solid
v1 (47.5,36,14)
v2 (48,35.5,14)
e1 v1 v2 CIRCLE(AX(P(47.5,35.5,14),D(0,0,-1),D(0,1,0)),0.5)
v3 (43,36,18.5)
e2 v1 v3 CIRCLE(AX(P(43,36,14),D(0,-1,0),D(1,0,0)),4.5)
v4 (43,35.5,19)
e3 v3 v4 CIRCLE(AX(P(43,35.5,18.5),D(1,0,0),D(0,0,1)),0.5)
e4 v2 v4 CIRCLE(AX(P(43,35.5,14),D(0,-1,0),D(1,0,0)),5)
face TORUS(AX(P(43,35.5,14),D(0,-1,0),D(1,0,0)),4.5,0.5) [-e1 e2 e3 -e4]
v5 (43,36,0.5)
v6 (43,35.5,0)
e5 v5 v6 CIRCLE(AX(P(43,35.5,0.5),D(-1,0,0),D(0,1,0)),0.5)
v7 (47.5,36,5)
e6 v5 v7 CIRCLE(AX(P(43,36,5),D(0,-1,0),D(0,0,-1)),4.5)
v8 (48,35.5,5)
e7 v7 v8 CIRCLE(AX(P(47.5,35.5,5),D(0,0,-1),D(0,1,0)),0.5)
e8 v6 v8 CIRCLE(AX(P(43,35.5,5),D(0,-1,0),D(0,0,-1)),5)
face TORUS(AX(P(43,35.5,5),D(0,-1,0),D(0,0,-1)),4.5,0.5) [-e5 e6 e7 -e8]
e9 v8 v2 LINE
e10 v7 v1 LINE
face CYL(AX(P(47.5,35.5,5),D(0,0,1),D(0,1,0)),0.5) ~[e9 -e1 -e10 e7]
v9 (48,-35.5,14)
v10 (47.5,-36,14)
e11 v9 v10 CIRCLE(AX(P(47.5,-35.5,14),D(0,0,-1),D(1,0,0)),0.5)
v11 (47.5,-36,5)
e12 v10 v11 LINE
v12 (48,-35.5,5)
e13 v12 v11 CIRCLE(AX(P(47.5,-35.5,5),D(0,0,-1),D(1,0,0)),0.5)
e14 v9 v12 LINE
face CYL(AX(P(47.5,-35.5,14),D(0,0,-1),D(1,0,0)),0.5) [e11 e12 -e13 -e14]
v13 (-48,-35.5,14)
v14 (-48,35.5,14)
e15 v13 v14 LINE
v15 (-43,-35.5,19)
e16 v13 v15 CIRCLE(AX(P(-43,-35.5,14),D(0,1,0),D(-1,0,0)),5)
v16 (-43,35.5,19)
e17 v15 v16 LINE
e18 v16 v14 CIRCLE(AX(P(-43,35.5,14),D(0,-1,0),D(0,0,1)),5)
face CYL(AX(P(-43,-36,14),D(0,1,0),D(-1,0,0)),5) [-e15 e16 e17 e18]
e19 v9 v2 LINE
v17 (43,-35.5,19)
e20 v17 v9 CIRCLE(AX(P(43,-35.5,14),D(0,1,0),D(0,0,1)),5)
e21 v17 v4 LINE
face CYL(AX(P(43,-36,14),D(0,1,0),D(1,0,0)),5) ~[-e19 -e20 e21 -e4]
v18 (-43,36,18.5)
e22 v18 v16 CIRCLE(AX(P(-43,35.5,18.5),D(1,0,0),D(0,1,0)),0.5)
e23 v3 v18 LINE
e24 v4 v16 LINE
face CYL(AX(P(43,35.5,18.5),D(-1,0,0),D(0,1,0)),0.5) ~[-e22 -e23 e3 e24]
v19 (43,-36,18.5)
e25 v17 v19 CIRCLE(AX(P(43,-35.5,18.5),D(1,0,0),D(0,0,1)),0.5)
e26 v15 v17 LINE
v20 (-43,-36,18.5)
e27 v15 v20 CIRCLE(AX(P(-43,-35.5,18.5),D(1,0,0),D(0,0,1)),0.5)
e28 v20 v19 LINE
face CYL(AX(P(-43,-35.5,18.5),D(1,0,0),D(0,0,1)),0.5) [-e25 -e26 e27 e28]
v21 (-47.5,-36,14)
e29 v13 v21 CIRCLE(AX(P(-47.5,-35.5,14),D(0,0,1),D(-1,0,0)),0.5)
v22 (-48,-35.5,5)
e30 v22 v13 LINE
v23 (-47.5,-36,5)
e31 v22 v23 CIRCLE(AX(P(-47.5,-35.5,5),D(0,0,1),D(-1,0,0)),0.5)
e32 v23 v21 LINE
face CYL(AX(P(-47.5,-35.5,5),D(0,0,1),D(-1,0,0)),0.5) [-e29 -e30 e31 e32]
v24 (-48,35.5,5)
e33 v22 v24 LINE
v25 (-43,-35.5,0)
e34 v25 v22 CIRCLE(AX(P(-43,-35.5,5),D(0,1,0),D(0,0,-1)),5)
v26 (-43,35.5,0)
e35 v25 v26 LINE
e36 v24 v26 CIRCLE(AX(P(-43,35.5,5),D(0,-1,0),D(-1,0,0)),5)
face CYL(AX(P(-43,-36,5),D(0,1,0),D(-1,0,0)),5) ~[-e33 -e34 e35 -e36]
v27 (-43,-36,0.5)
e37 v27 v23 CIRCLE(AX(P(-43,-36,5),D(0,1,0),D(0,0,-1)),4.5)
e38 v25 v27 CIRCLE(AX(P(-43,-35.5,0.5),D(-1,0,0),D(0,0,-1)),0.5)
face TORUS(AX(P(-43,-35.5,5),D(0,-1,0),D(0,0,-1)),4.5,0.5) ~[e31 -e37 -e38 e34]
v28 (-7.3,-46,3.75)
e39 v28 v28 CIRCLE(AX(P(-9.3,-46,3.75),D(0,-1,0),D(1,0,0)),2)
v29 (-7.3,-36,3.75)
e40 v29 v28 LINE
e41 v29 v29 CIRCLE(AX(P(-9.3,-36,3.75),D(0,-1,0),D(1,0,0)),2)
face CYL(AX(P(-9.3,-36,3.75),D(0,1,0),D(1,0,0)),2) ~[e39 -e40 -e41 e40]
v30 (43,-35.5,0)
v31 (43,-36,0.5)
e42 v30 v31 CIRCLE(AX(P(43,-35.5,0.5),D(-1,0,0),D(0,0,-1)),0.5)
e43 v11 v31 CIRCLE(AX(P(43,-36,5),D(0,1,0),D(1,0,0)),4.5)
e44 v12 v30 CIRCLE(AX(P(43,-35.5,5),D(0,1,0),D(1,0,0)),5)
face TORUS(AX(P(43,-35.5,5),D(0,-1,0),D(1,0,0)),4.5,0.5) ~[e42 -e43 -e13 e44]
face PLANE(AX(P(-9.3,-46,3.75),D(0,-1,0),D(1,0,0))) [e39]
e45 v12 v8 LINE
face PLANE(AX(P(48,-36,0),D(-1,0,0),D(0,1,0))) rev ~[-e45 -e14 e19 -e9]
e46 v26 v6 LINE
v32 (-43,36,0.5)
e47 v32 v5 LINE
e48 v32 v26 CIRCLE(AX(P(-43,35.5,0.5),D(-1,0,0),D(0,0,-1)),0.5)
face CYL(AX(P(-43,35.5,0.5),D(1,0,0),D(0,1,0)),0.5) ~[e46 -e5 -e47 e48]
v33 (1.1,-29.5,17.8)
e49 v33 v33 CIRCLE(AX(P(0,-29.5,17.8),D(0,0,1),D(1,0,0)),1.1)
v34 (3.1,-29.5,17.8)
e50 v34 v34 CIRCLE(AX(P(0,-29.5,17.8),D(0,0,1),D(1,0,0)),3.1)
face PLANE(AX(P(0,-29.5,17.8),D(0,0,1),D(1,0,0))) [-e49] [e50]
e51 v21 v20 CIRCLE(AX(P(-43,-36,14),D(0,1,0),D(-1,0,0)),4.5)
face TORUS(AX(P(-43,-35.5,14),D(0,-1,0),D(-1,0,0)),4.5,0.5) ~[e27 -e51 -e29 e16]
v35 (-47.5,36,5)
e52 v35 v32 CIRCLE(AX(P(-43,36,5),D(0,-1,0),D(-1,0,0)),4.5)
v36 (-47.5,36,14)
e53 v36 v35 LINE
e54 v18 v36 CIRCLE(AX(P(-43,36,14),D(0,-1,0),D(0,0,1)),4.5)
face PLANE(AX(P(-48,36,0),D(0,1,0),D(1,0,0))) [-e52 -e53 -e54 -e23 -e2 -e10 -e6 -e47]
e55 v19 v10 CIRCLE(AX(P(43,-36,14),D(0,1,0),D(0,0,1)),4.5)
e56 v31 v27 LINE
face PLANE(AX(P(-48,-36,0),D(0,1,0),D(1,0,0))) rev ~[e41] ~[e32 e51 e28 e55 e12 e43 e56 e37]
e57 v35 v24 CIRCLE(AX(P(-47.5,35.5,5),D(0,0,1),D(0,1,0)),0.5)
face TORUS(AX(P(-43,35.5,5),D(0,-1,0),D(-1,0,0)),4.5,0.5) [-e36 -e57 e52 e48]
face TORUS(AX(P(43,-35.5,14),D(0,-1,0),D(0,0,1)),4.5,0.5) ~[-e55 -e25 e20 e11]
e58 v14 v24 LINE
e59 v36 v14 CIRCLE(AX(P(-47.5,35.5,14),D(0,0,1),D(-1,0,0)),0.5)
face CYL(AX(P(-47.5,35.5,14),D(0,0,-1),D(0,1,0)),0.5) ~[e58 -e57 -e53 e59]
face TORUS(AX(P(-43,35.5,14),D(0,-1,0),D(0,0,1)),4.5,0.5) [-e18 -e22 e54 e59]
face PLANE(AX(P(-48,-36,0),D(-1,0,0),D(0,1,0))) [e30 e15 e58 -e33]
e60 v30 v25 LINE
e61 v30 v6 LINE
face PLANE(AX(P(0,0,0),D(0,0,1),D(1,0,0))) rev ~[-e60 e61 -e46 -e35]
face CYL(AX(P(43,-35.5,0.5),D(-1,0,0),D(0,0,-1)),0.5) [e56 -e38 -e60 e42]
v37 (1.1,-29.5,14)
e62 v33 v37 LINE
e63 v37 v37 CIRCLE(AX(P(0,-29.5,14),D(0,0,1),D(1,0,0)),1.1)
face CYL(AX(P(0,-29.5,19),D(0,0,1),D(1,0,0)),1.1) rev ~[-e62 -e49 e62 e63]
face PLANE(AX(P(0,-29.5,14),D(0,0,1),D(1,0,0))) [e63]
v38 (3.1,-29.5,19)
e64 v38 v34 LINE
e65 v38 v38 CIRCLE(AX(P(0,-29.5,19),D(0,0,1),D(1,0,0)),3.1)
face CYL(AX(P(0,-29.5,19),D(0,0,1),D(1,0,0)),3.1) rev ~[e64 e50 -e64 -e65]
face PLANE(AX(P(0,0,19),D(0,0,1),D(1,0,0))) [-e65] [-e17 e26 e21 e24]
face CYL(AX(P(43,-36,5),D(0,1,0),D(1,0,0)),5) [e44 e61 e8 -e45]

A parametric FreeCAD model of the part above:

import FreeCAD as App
import Part
import Sketcher
from FreeCAD import Vector


def edges_at(feature, points):
    """Names of the edges that pass closest to the given points."""
    edges = feature.Shape.Edges
    near = lambda p: min(range(len(edges)), key=lambda i: edges[i].distToShape(Part.Vertex(*p))[0])
    return sorted({f"Edge{near(p) + 1}" for p in points})

doc = App.newDocument("Part")
params = doc.addObject("Spreadsheet::Sheet", "Params")
for row, (alias, value) in enumerate([
    ("sketch1_width", "96 mm"),
    ("sketch1_height", "72 mm"),
    ("pad1_length", "19 mm"),
    ("fillet_radius", "5 mm"),
    ("fillet2_radius", "0.5 mm"),
    ("sketch2_diameter", "4 mm"),
    ("pad2_length", "10 mm"),
    ("sketch3_diameter", "2.2 mm"),
    ("pocket1_length", "5 mm"),
    ("sketch4_diameter", "6.2 mm"),
    ("sketch4_diameter2", "2.2 mm"),
    ("pocket2_length", "1.2 mm"),
], start=1):
    params.set(f"A{row}", alias)
    params.set(f"B{row}", "=" + value)
    params.setAlias(f"B{row}", alias)

body = doc.addObject("PartDesign::Body", "Body")

sketch1 = body.newObject("Sketcher::SketchObject", "Sketch")
sketch1.AttachmentSupport = (doc.getObject("XY_Plane"), [""])
sketch1.MapMode = "FlatFace"
sketch1.addGeometry([
    Part.LineSegment(Vector(-48, 36, 0), Vector(-48, -36, 0)),
    Part.LineSegment(Vector(-48, -36, 0), Vector(48, -36, 0)),
    Part.LineSegment(Vector(48, -36, 0), Vector(48, 36, 0)),
    Part.LineSegment(Vector(48, 36, 0), Vector(-48, 36, 0)),
], False)
sketch1.addConstraint([
    Sketcher.Constraint("Coincident", 0, 2, 1, 1),
    Sketcher.Constraint("Coincident", 1, 2, 2, 1),
    Sketcher.Constraint("Coincident", 2, 2, 3, 1),
    Sketcher.Constraint("Coincident", 3, 2, 0, 1),
    Sketcher.Constraint("Vertical", 0),
    Sketcher.Constraint("Horizontal", 1),
    Sketcher.Constraint("Vertical", 2),
    Sketcher.Constraint("Horizontal", 3),
    Sketcher.Constraint("Symmetric", 0, 2, 2, 2, -1, 1),
    Sketcher.Constraint("DistanceX", 1, 1, 1, 2, 96.0),
    Sketcher.Constraint("DistanceY", 0, 2, 0, 1, 72.0),
])
sketch1.setExpression("Constraints[9]", "Params.sketch1_width")
sketch1.setExpression("Constraints[10]", "Params.sketch1_height")
pad1 = body.newObject("PartDesign::Pad", "Pad")
pad1.Profile = sketch1
pad1.setExpression("Length", "Params.pad1_length")
doc.recompute()

fillet = body.newObject("PartDesign::Fillet", "Fillet")
fillet.Base = (pad1, edges_at(pad1, [
    (48, 0, 19),
    (48, 0, 0),
    (-48, 0, 19),
    (-48, 0, 0),
]))
fillet.setExpression("Radius", "Params.fillet_radius")
doc.recompute()

fillet2 = body.newObject("PartDesign::Fillet", "Fillet001")
fillet2.Base = (fillet, edges_at(fillet, [
    (-48, -36, 9.5),
    (-46.536, -36, 1.464),
    (-46.536, -36, 17.536),
    (0, -36, 0),
    (0, -36, 19),
    (46.536, -36, 1.464),
    (46.536, -36, 17.536),
    (48, -36, 9.5),
    (48, 36, 9.5),
    (46.536, 36, 1.464),
    (46.536, 36, 17.536),
    (0, 36, 0),
    (0, 36, 19),
    (-46.536, 36, 1.464),
    (-46.536, 36, 17.536),
    (-48, 36, 9.5),
]))
fillet2.setExpression("Radius", "Params.fillet2_radius")

sketch2 = body.newObject("Sketcher::SketchObject", "Sketch001")
sketch2.AttachmentSupport = (doc.getObject("XZ_Plane"), [""])
sketch2.MapMode = "FlatFace"
sketch2.AttachmentOffset = App.Placement(Vector(0, 0, 36), App.Rotation())
sketch2.addGeometry(Part.Circle(Vector(-9.3, 3.75, 0), Vector(0, 0, 1), 2), False)
sketch2.addConstraint([
    Sketcher.Constraint("Diameter", 0, 4.0),
    Sketcher.Constraint("DistanceX", 0, 3, -1, 1, 9.3),
    Sketcher.Constraint("DistanceY", -1, 1, 0, 3, 3.75),
])
sketch2.setExpression("Constraints[0]", "Params.sketch2_diameter")
pad2 = body.newObject("PartDesign::Pad", "Pad001")
pad2.Profile = sketch2
pad2.setExpression("Length", "Params.pad2_length")

sketch3 = body.newObject("Sketcher::SketchObject", "Sketch002")
sketch3.AttachmentSupport = (doc.getObject("XY_Plane"), [""])
sketch3.MapMode = "FlatFace"
sketch3.AttachmentOffset = App.Placement(Vector(0, 0, 19), App.Rotation())
sketch3.addGeometry(Part.Circle(Vector(0, -29.5, 0), Vector(0, 0, 1), 1.1), False)
sketch3.addConstraint([
    Sketcher.Constraint("PointOnObject", 0, 3, -2),
    Sketcher.Constraint("Diameter", 0, 2.2),
    Sketcher.Constraint("DistanceY", 0, 3, -1, 1, 29.5),
])
sketch3.setExpression("Constraints[1]", "Params.sketch3_diameter")
pocket1 = body.newObject("PartDesign::Pocket", "Pocket")
pocket1.Profile = sketch3
pocket1.setExpression("Length", "Params.pocket1_length")

sketch4 = body.newObject("Sketcher::SketchObject", "Sketch003")
sketch4.AttachmentSupport = (doc.getObject("XY_Plane"), [""])
sketch4.MapMode = "FlatFace"
sketch4.AttachmentOffset = App.Placement(Vector(0, 0, 19), App.Rotation())
sketch4.addGeometry([
    Part.Circle(Vector(0, -29.5, 0), Vector(0, 0, 1), 3.1),
    Part.Circle(Vector(0, -29.5, 0), Vector(0, 0, 1), 1.1),
], False)
sketch4.addConstraint([
    Sketcher.Constraint("Coincident", 1, 3, 0, 3),
    Sketcher.Constraint("PointOnObject", 0, 3, -2),
    Sketcher.Constraint("Diameter", 0, 6.2),
    Sketcher.Constraint("Diameter", 1, 2.2),
    Sketcher.Constraint("DistanceY", 0, 3, -1, 1, 29.5),
])
sketch4.setExpression("Constraints[2]", "Params.sketch4_diameter")
sketch4.setExpression("Constraints[3]", "Params.sketch4_diameter2")
pocket2 = body.newObject("PartDesign::Pocket", "Pocket001")
pocket2.Profile = sketch4
pocket2.setExpression("Length", "Params.pocket2_length")

doc.recompute()
